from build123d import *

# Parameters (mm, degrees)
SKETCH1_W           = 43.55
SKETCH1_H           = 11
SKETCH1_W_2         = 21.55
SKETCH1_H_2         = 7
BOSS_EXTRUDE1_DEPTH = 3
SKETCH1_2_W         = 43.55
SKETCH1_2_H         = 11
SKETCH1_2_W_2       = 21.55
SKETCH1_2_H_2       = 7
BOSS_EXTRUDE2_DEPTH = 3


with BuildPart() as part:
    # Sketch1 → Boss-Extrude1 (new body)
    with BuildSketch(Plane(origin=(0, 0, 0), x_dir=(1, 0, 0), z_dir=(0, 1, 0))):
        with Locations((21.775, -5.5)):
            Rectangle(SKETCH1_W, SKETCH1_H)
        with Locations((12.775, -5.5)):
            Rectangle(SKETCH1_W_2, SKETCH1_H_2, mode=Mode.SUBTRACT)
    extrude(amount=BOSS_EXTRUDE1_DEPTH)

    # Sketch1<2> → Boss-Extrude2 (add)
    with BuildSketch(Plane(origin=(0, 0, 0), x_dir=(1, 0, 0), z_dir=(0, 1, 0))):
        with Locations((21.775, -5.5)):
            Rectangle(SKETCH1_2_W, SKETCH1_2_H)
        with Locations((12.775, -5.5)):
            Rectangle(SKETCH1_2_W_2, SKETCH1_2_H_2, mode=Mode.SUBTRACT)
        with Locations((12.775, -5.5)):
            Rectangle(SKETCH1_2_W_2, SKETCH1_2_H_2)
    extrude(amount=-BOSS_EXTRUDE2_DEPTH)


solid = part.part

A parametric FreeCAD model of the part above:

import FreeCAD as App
import Part
import Sketcher
from FreeCAD import Vector
Q = App.Units.Quantity

doc = App.newDocument("Part")
params = doc.addObject("Spreadsheet::Sheet", "Params")
for row, (alias, value) in enumerate([
    ("sketch1_height", "11 mm"),
    ("sketch1_height2", "7 mm"),
    ("sketch1_width", "43.55 mm"),
    ("pad1_length", "3 mm"),
    ("sketch2_height", "11 mm"),
    ("sketch2_width", "43.55 mm"),
    ("pad2_length", "3 mm"),
], start=1):
    params.set(f"A{row}", alias)
    params.set(f"B{row}", "=" + value)
    params.setAlias(f"B{row}", alias)

body = doc.addObject("PartDesign::Body", "Body")

sketch1 = body.newObject("Sketcher::SketchObject", "Sketch")
sketch1.AttachmentSupport = (doc.getObject("XZ_Plane"), [""])
sketch1.MapMode = "FlatFace"
sketch1.addGeometry([
    Part.LineSegment(Vector(0, 0, 0), Vector(0, 11, 0)),
    Part.LineSegment(Vector(0, 11, 0), Vector(44, 11, 0)),
    Part.LineSegment(Vector(44, 11, 0), Vector(44, 0, 0)),
    Part.LineSegment(Vector(44, 0, 0), Vector(0, 0, 0)),
    Part.LineSegment(Vector(24, 9, 0), Vector(2, 9, 0)),
    Part.LineSegment(Vector(2, 9, 0), Vector(2, 2, 0)),
    Part.LineSegment(Vector(2, 2, 0), Vector(24, 2, 0)),
    Part.LineSegment(Vector(24, 2, 0), Vector(24, 9, 0)),
], False)
sketch1.addConstraint([
    Sketcher.Constraint("Coincident", 0, 2, 1, 1),
    Sketcher.Constraint("Coincident", 1, 2, 2, 1),
    Sketcher.Constraint("Coincident", 2, 2, 3, 1),
    Sketcher.Constraint("Coincident", 3, 2, 0, 1),
    Sketcher.Constraint("Coincident", 4, 2, 5, 1),
    Sketcher.Constraint("Coincident", 5, 2, 6, 1),
    Sketcher.Constraint("Coincident", 6, 2, 7, 1),
    Sketcher.Constraint("Coincident", 7, 2, 4, 1),
    Sketcher.Constraint("Vertical", 0),
    Sketcher.Constraint("Horizontal", 1),
    Sketcher.Constraint("Vertical", 2),
    Sketcher.Constraint("Horizontal", 3),
    Sketcher.Constraint("Horizontal", 4),
    Sketcher.Constraint("Vertical", 5),
    Sketcher.Constraint("Horizontal", 6),
    Sketcher.Constraint("Vertical", 7),
    Sketcher.Constraint("Coincident", 3, 2, -1, 1),
    Sketcher.Constraint("DistanceY", 0, 1, 0, 2, Q("11 mm")),
    Sketcher.Constraint("DistanceY", 5, 2, 5, 1, Q("7 mm")),
    Sketcher.Constraint("DistanceX", -1, 1, 4, 2, Q("2 mm")),
    Sketcher.Constraint("DistanceY", -1, 1, 4, 2, Q("9 mm")),
    Sketcher.Constraint("DistanceX", 6, 2, 2, 2, Q("20 mm")),
    Sketcher.Constraint("DistanceX", 1, 1, 1, 2, Q("43.55 mm")),
])
sketch1.setExpression("Constraints[17]", "Params.sketch1_height")
sketch1.setExpression("Constraints[18]", "Params.sketch1_height2")
sketch1.setExpression("Constraints[22]", "Params.sketch1_width")
pad1 = body.newObject("PartDesign::Pad", "Pad")
pad1.Profile = sketch1
pad1.setExpression("Length", "Params.pad1_length")
pad1.Reversed = True

sketch2 = body.newObject("Sketcher::SketchObject", "Sketch001")
sketch2.AttachmentSupport = (doc.getObject("XZ_Plane"), [""])
sketch2.MapMode = "FlatFace"
sketch2.addGeometry([
    Part.LineSegment(Vector(0, 0, 0), Vector(0, 11, 0)),
    Part.LineSegment(Vector(0, 11, 0), Vector(44, 11, 0)),
    Part.LineSegment(Vector(44, 11, 0), Vector(44, 0, 0)),
    Part.LineSegment(Vector(44, 0, 0), Vector(0, 0, 0)),
], False)
sketch2.addConstraint([
    Sketcher.Constraint("Coincident", 0, 2, 1, 1),
    Sketcher.Constraint("Coincident", 1, 2, 2, 1),
    Sketcher.Constraint("Coincident", 2, 2, 3, 1),
    Sketcher.Constraint("Coincident", 3, 2, 0, 1),
    Sketcher.Constraint("Vertical", 0),
    Sketcher.Constraint("Horizontal", 1),
    Sketcher.Constraint("Vertical", 2),
    Sketcher.Constraint("Horizontal", 3),
    Sketcher.Constraint("Coincident", 3, 2, -1, 1),
    Sketcher.Constraint("DistanceY", 0, 1, 0, 2, Q("11 mm")),
    Sketcher.Constraint("DistanceX", 1, 1, 1, 2, Q("43.55 mm")),
])
sketch2.setExpression("Constraints[9]", "Params.sketch2_height")
sketch2.setExpression("Constraints[10]", "Params.sketch2_width")
pad2 = body.newObject("PartDesign::Pad", "Pad001")
pad2.Profile = sketch2
pad2.setExpression("Length", "Params.pad2_length")

doc.recompute()
